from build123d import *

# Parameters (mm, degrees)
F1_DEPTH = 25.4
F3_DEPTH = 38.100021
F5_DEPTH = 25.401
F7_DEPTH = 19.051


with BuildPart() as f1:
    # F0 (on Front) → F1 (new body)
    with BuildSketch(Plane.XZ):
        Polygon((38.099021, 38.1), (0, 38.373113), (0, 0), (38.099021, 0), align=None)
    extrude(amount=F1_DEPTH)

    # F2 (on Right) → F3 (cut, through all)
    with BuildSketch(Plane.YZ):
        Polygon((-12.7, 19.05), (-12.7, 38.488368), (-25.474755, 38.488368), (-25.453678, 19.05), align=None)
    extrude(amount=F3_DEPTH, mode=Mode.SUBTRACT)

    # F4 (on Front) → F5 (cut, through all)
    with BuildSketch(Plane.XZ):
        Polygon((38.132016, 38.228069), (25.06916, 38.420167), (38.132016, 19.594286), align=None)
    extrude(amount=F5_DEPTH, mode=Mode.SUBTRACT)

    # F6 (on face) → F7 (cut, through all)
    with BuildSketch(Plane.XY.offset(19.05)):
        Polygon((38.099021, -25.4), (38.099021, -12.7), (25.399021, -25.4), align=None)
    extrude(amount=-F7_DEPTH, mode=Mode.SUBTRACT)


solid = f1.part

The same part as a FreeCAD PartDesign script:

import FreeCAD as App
import Part
import Sketcher

V = App.Vector
Q = App.Units.Quantity


def add_polygon(sketch, points):
    """Adds a closed chain of lines whose ends are joined by coincident constraints."""
    first, n = sketch.GeometryCount, len(points)
    for a, b in zip(points, points[1:] + points[:1]):
        sketch.addGeometry(Part.LineSegment(App.Vector(*a, 0), App.Vector(*b, 0)), False)
    for i in range(n):
        sketch.addConstraint(Sketcher.Constraint("Coincident", first + i, 2, first + (i + 1) % n, 1))

doc = App.newDocument("Part")
body = doc.addObject("PartDesign::Body", "Body")

# Sketch on XZ plane
sketch1 = body.newObject("Sketcher::SketchObject", "Sketch")
sketch1.AttachmentSupport = (doc.getObject("XZ_Plane"), [""])
sketch1.MapMode = "FlatFace"
add_polygon(sketch1, [(38.099021, 38.1), (0, 38.373113), (0, 0), (38.099021, 0)])  # lines 0-3
sketch1.addConstraint([
    Sketcher.Constraint("Vertical", 1),
    Sketcher.Constraint("Horizontal", 2),
    Sketcher.Constraint("Vertical", 3),
    Sketcher.Constraint("Coincident", 1, 2, -1, 1),
    Sketcher.Constraint("DistanceY", 3, 1, 3, 2, Q("1.5 in")),
    Sketcher.Constraint("Distance", 0, Q("1.5 in")),
    Sketcher.Constraint("DistanceX", 2, 1, 2, 2, 38.099021),
])
pad1 = body.newObject("PartDesign::Pad", "Pad")
pad1.Profile = sketch1
pad1.Length = Q("1 in")

# Sketch on YZ plane
sketch2 = body.newObject("Sketcher::SketchObject", "Sketch001")
sketch2.AttachmentSupport = (doc.getObject("YZ_Plane"), [""])
sketch2.MapMode = "FlatFace"
add_polygon(sketch2, [(-13, 19), (-13, 38), (-25, 38), (-25, 19)])  # lines 0-3
sketch2.addConstraint([
    Sketcher.Constraint("Vertical", 0),
    Sketcher.Constraint("Horizontal", 1),
    Sketcher.Constraint("Horizontal", 3),
    Sketcher.Constraint("DistanceX", 0, 2, -1, 1, Q("0.5 in")),
    Sketcher.Constraint("DistanceY", -1, 1, 2, 2, Q("0.75 in")),
    Sketcher.Constraint("DistanceX", 3, 1, 3, 2, 12.753678),
    Sketcher.Constraint("DistanceY", 0, 1, 0, 2, 19.438368),
    Sketcher.Constraint("DistanceX", 1, 2, 1, 1, 12.774755),
])
pocket1 = body.newObject("PartDesign::Pocket", "Pocket")
pocket1.Profile = sketch2
pocket1.Type = "ThroughAll"
pocket1.Reversed = True

# Sketch on XZ plane
sketch3 = body.newObject("Sketcher::SketchObject", "Sketch002")
sketch3.AttachmentSupport = (doc.getObject("XZ_Plane"), [""])
sketch3.MapMode = "FlatFace"
add_polygon(sketch3, [(38, 38), (25, 38), (38, 20)])  # lines 0-2
sketch3.addConstraint([
    Sketcher.Constraint("Vertical", 2),
    Sketcher.Constraint("DistanceY", 2, 2, 0, 2, 0.192098),
    Sketcher.Constraint("Distance", 0, 13.064268),
    Sketcher.Constraint("DistanceY", 2, 1, 2, 2, 18.633783),
    Sketcher.Constraint("DistanceX", -1, 1, 0, 2, 25.06916),
    Sketcher.Constraint("DistanceY", -1, 1, 2, 2, 38.228069),
])
pocket2 = body.newObject("PartDesign::Pocket", "Pocket001")
pocket2.Profile = sketch3
pocket2.Type = "ThroughAll"
pocket2.Reversed = True

# Sketch on XY plane
sketch4 = body.newObject("Sketcher::SketchObject", "Sketch003")
sketch4.AttachmentSupport = (doc.getObject("XY_Plane"), [""])
sketch4.MapMode = "FlatFace"
sketch4.AttachmentOffset = App.Placement(V(0, 0, 0.75 * 25.4), App.Rotation())
add_polygon(sketch4, [(38, -25), (38, -13), (25, -25)])  # lines 0-2
sketch4.addConstraint([
    Sketcher.Constraint("Vertical", 0),
    Sketcher.Constraint("Horizontal", 2),
    Sketcher.Constraint("Equal", 2, 0),
    Sketcher.Constraint("DistanceX", 2, 1, 2, 2, Q("0.5 in")),
    Sketcher.Constraint("DistanceY", 1, 2, -1, 1, Q("1 in")),
    Sketcher.Constraint("DistanceX", -1, 1, 0, 2, 38.099021),
])
pocket3 = body.newObject("PartDesign::Pocket", "Pocket002")
pocket3.Profile = sketch4
pocket3.Type = "ThroughAll"

doc.recompute()
